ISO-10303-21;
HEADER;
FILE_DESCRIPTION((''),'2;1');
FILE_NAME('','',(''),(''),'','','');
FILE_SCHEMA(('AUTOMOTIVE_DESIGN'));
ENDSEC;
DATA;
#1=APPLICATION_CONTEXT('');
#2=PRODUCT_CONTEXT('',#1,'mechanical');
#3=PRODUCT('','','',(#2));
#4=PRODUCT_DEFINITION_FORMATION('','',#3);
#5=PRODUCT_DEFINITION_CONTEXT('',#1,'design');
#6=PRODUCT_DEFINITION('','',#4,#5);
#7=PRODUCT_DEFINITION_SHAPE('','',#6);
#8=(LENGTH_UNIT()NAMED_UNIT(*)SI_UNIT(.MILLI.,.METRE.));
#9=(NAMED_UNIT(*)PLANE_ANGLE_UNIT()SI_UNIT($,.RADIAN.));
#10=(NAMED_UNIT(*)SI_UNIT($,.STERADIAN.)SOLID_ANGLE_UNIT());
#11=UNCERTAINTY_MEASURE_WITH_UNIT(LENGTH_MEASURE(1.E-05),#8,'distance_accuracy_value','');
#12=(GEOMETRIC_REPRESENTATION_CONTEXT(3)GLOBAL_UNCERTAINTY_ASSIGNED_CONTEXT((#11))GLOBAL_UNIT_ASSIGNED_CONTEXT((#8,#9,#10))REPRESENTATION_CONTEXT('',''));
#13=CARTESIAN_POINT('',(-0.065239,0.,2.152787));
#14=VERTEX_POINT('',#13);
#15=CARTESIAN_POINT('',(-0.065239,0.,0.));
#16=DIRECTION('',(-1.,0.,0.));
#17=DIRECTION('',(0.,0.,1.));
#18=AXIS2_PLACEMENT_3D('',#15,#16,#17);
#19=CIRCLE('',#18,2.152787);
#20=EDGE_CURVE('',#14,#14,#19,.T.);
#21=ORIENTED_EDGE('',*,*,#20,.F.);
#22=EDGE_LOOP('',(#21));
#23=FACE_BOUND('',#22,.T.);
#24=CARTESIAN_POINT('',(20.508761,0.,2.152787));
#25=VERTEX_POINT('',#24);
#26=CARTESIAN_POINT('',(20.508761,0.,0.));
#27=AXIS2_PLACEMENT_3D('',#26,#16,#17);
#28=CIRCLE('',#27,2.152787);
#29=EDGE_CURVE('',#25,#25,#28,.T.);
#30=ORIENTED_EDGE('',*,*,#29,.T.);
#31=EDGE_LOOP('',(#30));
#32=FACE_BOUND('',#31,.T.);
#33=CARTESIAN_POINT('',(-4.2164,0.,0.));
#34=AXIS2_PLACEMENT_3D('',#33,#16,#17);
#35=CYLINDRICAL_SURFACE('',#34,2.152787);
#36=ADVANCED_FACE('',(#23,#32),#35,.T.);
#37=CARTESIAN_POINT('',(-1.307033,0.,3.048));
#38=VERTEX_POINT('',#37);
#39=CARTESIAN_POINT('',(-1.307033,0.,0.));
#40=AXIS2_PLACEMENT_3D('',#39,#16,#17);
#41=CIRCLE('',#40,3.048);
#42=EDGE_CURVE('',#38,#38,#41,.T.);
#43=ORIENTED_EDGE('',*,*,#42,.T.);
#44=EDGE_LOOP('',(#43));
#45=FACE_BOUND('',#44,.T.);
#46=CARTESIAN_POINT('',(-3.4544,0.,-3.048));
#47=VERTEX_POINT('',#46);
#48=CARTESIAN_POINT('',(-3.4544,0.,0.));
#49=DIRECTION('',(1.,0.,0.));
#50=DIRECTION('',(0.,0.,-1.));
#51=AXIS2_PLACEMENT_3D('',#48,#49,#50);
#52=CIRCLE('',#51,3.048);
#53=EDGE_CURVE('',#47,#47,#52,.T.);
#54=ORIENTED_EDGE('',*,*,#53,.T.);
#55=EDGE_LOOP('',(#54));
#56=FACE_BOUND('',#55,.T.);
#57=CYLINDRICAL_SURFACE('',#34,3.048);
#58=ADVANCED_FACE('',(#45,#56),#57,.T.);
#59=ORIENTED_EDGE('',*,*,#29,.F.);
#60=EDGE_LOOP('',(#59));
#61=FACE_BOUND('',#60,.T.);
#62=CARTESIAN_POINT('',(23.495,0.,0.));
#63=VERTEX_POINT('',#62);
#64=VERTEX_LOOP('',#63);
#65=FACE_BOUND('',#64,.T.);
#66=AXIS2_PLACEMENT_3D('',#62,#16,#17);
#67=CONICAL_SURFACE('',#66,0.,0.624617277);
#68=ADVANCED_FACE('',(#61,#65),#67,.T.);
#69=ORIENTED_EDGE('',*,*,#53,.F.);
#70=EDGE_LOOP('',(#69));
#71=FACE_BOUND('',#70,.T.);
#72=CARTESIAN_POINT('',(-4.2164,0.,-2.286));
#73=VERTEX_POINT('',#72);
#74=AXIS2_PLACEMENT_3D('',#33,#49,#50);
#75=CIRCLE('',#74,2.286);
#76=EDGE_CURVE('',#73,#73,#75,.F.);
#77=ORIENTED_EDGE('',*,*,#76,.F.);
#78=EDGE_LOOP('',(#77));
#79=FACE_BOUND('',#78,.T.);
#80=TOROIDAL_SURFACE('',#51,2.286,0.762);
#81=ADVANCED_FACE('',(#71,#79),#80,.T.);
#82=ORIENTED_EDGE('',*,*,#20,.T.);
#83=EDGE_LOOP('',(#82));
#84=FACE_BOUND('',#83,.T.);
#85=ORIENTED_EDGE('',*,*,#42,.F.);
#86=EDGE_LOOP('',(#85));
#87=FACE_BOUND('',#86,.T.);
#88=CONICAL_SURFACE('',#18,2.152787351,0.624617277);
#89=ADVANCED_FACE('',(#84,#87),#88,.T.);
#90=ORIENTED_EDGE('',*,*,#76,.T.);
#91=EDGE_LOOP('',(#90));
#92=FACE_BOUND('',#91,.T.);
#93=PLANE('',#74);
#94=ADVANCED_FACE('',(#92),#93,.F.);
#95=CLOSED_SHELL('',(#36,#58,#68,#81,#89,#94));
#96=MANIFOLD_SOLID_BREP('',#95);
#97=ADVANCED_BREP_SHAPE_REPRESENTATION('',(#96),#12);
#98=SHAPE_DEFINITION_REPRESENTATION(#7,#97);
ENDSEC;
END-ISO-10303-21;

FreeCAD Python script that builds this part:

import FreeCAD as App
import Part
import Sketcher
Q = App.Units.Quantity


def edges_at(feature, points):
    """Names of the edges that pass closest to the given points."""
    edges = feature.Shape.Edges
    near = lambda p: min(range(len(edges)), key=lambda i: edges[i].distToShape(Part.Vertex(*p))[0])
    return sorted({f"Edge{near(p) + 1}" for p in points})


def add_polygon(sketch, points):
    """Adds a closed chain of lines whose ends are joined by coincident constraints."""
    first, n = sketch.GeometryCount, len(points)
    for a, b in zip(points, points[1:] + points[:1]):
        sketch.addGeometry(Part.LineSegment(App.Vector(*a, 0), App.Vector(*b, 0)), False)
    for i in range(n):
        sketch.addConstraint(Sketcher.Constraint("Coincident", first + i, 2, first + (i + 1) % n, 1))

doc = App.newDocument("Part")
body = doc.addObject("PartDesign::Body", "Body")

# Sketch on XY plane
sketch1 = doc.addObject("Sketcher::SketchObject", "Sketch")
body.addObject(sketch1)
sketch1.AttachmentSupport = (doc.XY_Plane, [""])
sketch1.MapMode = "FlatFace"
add_polygon(sketch1, [(-4.2, 3), (-4.2, 0), (23.5, 0), (20.5, 2.2), (-0.1, 2.2), (-1.3, 3)])  # lines 0-5
sketch1.addConstraint(Sketcher.Constraint("Vertical", 0))
sketch1.addConstraint(Sketcher.Constraint("Horizontal", 1))
sketch1.addConstraint(Sketcher.Constraint("Horizontal", 3))
sketch1.addConstraint(Sketcher.Constraint("Horizontal", 5))
sketch1.addConstraint(Sketcher.Constraint("PointOnObject", 0, 2, -1))
sketch1.addConstraint(Sketcher.Constraint("Parallel", 2, 4))
sketch1.addConstraint(Sketcher.Constraint("DistanceX", 3, 2, 3, 1, Q("0.81 in")))
sketch1.addConstraint(Sketcher.Constraint("DistanceY", 0, 2, 0, 1, Q("0.12 in")))
sketch1.addConstraint(Sketcher.Constraint("DistanceX", 1, 1, 1, 2, Q("1.091 in")))
sketch1.addConstraint(Sketcher.Constraint("DistanceX", 0, 2, -1, 1, Q("0.166 in")))
sketch1.addConstraint(Sketcher.Constraint("Distance", 2, 3.68132))
sketch1.addConstraint(Sketcher.Constraint("DistanceX", 5, 2, 5, 1, 2.909367))
revolution = doc.addObject("PartDesign::Revolution", "Revolution")
body.addObject(revolution)
revolution.Profile = sketch1
revolution.ReferenceAxis = (sketch1, ["H_Axis"])
revolution.Angle = 360
doc.recompute()

fillet = doc.addObject("PartDesign::Fillet", "Fillet")
body.addObject(fillet)
fillet.Base = (revolution, edges_at(revolution, [(-4.216, 0, -3.048)]))
fillet.Radius = Q("0.03 in")

doc.recompute()
